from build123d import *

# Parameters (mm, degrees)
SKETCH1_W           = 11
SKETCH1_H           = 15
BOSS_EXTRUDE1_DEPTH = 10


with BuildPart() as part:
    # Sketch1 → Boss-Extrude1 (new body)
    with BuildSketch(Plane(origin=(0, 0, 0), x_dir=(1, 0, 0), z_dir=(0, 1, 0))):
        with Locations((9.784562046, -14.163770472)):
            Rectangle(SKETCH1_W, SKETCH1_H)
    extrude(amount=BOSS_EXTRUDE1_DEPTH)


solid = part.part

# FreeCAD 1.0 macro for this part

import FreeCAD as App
import Part
import Sketcher


def add_polygon(sketch, points):
    """Adds a closed chain of lines whose ends are joined by coincident constraints."""
    first, n = sketch.GeometryCount, len(points)
    for a, b in zip(points, points[1:] + points[:1]):
        sketch.addGeometry(Part.LineSegment(App.Vector(*a, 0), App.Vector(*b, 0)), False)
    for i in range(n):
        sketch.addConstraint(Sketcher.Constraint("Coincident", first + i, 2, first + (i + 1) % n, 1))

doc = App.newDocument("Part")
body = doc.addObject("PartDesign::Body", "Body")

sketch1 = body.newObject("Sketcher::SketchObject", "Sketch")
sketch1.AttachmentSupport = (doc.getObject("XZ_Plane"), [""])
sketch1.MapMode = "FlatFace"
add_polygon(sketch1, [(4, 7), (4, 22), (15, 22), (15, 7)])
sketch1.addConstraint([
    Sketcher.Constraint("Vertical", 0),
    Sketcher.Constraint("Horizontal", 1),
    Sketcher.Constraint("Vertical", 2),
    Sketcher.Constraint("Horizontal", 3),
    Sketcher.Constraint("DistanceX", 1, 1, 1, 2, 11.0),
    Sketcher.Constraint("DistanceY", 0, 1, 0, 2, 15.0),
    Sketcher.Constraint("DistanceY", -1, 1, 0, 2, 21.66377),
    Sketcher.Constraint("DistanceX", -1, 1, 0, 2, 4.284562),
])
pad1 = body.newObject("PartDesign::Pad", "Pad")
pad1.Profile = sketch1
pad1.Length = 10
pad1.Reversed = True

doc.recompute()
